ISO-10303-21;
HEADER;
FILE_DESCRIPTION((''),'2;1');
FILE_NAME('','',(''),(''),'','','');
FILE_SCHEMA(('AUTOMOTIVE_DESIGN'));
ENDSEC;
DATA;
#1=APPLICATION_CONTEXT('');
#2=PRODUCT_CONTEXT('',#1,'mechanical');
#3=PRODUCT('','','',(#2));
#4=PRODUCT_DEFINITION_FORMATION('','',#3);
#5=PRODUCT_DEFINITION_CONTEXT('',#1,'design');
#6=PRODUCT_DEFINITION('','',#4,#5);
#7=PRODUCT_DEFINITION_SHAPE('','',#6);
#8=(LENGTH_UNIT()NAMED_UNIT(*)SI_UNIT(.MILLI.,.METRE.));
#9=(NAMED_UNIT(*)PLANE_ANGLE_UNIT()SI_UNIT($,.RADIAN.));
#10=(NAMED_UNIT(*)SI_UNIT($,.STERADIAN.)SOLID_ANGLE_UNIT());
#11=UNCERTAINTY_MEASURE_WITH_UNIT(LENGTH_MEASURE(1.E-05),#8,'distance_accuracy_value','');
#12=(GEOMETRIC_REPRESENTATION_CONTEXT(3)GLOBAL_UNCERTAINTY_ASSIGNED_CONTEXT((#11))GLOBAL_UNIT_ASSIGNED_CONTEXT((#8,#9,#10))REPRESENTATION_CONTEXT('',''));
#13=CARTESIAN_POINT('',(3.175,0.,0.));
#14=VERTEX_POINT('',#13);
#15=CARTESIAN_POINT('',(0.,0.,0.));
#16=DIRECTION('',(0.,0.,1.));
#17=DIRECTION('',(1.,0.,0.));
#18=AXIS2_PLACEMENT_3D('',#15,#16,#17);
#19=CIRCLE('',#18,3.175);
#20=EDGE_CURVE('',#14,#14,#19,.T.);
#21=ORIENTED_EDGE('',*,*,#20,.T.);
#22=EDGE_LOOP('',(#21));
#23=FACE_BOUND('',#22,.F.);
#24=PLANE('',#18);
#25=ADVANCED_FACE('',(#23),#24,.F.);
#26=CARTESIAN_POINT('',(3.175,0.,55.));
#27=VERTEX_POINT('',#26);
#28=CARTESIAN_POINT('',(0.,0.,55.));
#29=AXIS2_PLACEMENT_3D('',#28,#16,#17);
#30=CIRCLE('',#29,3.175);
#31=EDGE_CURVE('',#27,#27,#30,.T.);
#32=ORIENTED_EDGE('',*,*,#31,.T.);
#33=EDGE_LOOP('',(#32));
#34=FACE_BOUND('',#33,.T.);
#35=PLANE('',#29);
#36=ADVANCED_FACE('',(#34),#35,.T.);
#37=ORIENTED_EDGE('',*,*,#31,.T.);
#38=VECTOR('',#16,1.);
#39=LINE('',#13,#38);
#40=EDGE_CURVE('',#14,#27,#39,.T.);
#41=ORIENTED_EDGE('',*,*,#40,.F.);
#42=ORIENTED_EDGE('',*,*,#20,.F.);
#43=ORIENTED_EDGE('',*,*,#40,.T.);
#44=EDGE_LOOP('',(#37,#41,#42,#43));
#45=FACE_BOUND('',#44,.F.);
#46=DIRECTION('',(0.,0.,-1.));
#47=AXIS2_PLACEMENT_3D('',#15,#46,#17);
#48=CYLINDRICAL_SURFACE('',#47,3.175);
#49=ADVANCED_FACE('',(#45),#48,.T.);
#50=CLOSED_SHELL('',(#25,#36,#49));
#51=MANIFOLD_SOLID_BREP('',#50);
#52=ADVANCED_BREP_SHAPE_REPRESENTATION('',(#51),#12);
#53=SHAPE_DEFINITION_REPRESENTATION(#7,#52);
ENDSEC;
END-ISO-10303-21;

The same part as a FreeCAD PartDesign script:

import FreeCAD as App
import Part
import Sketcher

V = App.Vector

doc = App.newDocument("Part")
body = doc.addObject("PartDesign::Body", "Body")

# Sketch on XY plane
sketch1 = body.newObject("Sketcher::SketchObject", "Sketch")
sketch1.AttachmentSupport = (doc.getObject("XY_Plane"), [""])
sketch1.MapMode = "FlatFace"
sketch1.addGeometry(Part.Circle(V(0, 0, 0), V(0, 0, 1), 3.175), False)
sketch1.addConstraint([
    Sketcher.Constraint("Coincident", 0, 3, -1, 1),
    Sketcher.Constraint("Diameter", 0, 6.35),
])
pad1 = body.newObject("PartDesign::Pad", "Pad")
pad1.Profile = sketch1
pad1.Length = 55

doc.recompute()
